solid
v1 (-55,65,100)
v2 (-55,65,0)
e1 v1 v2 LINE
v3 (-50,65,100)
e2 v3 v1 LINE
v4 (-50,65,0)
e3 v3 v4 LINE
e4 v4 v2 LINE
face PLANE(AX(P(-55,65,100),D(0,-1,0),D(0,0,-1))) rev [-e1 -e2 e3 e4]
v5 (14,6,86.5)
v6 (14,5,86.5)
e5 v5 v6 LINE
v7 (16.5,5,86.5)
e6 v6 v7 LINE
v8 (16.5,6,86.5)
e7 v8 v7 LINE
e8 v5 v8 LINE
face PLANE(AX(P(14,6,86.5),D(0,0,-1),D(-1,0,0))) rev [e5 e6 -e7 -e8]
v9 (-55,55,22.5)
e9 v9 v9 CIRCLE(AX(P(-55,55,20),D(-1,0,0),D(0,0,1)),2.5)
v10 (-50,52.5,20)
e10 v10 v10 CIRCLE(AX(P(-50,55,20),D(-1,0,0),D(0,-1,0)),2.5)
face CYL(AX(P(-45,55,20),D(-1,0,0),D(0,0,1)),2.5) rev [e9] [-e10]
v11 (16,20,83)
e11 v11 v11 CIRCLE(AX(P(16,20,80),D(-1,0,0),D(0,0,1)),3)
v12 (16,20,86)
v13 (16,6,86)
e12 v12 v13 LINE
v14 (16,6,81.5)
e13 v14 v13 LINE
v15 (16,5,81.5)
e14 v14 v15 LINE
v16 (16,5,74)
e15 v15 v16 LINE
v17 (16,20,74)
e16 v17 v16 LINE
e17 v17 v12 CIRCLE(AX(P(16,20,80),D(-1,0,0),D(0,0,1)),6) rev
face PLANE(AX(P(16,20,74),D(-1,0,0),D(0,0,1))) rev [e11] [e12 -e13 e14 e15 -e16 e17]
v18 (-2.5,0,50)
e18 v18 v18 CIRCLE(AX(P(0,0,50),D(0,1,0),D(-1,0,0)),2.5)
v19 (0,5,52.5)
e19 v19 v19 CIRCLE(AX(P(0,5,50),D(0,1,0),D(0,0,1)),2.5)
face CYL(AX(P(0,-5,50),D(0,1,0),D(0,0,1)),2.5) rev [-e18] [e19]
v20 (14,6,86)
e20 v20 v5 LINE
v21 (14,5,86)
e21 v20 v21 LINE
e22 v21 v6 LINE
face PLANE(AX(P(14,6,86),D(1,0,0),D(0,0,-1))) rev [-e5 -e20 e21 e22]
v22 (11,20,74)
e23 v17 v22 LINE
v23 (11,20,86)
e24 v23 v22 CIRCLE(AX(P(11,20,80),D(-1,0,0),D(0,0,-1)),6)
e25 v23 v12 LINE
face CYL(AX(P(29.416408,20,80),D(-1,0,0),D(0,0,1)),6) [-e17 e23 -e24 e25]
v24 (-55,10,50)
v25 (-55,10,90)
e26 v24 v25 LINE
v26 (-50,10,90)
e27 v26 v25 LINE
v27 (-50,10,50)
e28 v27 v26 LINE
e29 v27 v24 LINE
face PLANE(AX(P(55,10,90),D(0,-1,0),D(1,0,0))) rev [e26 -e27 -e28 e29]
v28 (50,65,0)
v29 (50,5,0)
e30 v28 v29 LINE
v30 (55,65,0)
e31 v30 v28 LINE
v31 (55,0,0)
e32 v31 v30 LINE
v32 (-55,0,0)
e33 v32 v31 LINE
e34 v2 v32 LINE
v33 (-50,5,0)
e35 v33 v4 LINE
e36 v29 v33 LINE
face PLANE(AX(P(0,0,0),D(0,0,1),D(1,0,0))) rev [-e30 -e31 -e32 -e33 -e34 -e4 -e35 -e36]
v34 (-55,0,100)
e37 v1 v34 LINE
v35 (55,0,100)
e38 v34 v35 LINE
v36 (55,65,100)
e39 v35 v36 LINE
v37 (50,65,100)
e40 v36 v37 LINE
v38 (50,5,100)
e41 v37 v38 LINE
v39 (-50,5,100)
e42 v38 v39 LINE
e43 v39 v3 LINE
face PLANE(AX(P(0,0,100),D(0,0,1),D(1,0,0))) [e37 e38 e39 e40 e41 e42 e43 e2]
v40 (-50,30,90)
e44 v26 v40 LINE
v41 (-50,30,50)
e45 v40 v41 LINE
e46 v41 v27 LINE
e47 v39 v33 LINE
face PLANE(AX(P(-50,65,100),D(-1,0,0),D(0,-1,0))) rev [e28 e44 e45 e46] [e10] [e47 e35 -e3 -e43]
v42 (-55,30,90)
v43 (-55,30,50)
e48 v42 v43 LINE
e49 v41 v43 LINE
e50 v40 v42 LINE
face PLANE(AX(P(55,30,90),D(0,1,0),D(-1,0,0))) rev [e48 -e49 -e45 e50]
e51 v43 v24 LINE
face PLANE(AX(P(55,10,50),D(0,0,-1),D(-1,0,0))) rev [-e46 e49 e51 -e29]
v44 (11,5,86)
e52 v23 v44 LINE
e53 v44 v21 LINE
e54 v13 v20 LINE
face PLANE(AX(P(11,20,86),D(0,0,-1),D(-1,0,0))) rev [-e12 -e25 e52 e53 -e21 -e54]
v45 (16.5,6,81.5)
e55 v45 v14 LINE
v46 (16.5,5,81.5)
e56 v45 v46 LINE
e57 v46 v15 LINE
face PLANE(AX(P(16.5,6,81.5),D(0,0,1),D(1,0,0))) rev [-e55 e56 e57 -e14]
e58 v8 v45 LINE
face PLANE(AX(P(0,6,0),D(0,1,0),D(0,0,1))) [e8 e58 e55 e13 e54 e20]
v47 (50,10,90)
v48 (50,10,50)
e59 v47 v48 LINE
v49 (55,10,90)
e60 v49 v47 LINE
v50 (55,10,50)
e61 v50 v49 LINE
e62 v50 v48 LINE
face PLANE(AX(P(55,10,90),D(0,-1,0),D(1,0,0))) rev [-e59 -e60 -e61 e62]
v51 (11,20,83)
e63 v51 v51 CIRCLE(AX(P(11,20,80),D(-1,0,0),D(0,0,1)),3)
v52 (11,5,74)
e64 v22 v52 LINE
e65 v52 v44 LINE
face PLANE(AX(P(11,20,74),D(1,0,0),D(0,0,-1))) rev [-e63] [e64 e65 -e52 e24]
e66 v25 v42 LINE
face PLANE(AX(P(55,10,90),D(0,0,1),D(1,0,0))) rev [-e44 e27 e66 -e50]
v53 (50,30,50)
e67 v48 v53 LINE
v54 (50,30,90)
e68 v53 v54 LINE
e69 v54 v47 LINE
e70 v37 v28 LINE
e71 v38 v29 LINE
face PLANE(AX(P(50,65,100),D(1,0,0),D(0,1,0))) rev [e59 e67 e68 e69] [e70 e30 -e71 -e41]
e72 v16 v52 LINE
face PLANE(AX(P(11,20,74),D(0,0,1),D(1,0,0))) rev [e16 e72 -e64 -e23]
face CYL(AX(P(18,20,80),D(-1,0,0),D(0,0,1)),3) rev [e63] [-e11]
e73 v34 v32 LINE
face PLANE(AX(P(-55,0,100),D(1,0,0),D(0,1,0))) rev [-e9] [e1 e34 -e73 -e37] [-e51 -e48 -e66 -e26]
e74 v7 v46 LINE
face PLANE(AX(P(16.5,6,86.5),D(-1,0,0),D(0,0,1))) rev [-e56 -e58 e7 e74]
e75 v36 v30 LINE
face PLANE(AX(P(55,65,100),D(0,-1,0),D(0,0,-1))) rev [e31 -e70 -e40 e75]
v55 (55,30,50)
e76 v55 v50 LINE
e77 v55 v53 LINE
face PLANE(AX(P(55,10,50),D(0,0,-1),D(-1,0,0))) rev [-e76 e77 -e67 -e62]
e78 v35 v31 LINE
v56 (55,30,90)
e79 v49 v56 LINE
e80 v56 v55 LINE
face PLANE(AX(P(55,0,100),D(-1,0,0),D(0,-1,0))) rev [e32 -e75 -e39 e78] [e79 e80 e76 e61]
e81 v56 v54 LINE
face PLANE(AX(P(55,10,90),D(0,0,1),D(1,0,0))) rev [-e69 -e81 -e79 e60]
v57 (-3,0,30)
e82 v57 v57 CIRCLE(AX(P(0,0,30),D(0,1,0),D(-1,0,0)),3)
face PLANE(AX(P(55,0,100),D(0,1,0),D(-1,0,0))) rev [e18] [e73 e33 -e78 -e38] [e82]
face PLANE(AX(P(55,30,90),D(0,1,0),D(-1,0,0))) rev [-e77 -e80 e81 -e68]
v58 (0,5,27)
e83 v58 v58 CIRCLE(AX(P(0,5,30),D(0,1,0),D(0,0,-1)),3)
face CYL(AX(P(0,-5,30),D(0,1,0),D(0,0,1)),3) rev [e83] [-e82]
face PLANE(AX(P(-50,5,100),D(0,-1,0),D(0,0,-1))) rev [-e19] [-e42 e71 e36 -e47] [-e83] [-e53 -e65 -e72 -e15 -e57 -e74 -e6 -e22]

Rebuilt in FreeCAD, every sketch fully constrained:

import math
import FreeCAD as App
import Part
import Sketcher
Q = App.Units.Quantity

doc = App.newDocument("Part")
params = doc.addObject("Spreadsheet::Sheet", "Params")
for row, (alias, value) in enumerate([
    ("sketch1_width", "100 mm"),
    ("sketch1_width2", "5 mm"),
    ("sketch1_height", "60 mm"),
    ("sketch1_height2", "65 mm"),
    ("pad1_length", "100 mm"),
    ("sketch2_diameter", "5 mm"),
    ("sketch2_diameter2", "6 mm"),
    ("pocket1_length", "10 mm"),
    ("sketch3_diameter", "5 mm"),
    ("pocket2_length", "10 mm"),
    ("sketch4_diameter", "4 mm"),
    ("pocket3_length", "10 mm"),
    ("sketch5_width", "20 mm"),
    ("sketch5_height", "40 mm"),
    ("sketch6_width", "5 mm"),
    ("sketch6_height", "12 mm"),
    ("pad2_length", "15 mm"),
    ("sketch7_radius", "6 mm"),
    ("pad3_length", "5 mm"),
    ("sketch8_diameter", "6 mm"),
    ("pocket5_length", "7 mm"),
    ("sketch9_width", "2 mm"),
    ("sketch9_height", "5 mm"),
    ("sketch9_width2", "2.5 mm"),
    ("pad4_length", "1 mm"),
], start=1):
    params.set(f"A{row}", alias)
    params.set(f"B{row}", "=" + value)
    params.setAlias(f"B{row}", alias)

body = doc.addObject("PartDesign::Body", "Body")

sketch1 = body.newObject("Sketcher::SketchObject", "Sketch")
sketch1.AttachmentSupport = (doc.getObject("XY_Plane"), [""])
sketch1.MapMode = "FlatFace"
sketch1.addGeometry([
    Part.LineSegment(App.Vector(50, 5, 0), App.Vector(-50, 5, 0)),
    Part.LineSegment(App.Vector(-50, 5, 0), App.Vector(-50, 65, 0)),
    Part.LineSegment(App.Vector(-50, 65, 0), App.Vector(-55, 65, 0)),
    Part.LineSegment(App.Vector(-55, 65, 0), App.Vector(-55, 0, 0)),
    Part.LineSegment(App.Vector(-55, 0, 0), App.Vector(55, 0, 0)),
    Part.LineSegment(App.Vector(55, 0, 0), App.Vector(55, 65, 0)),
    Part.LineSegment(App.Vector(55, 65, 0), App.Vector(50, 65, 0)),
    Part.LineSegment(App.Vector(50, 65, 0), App.Vector(50, 5, 0)),
], False)
sketch1.addConstraint([
    Sketcher.Constraint("Coincident", 0, 2, 1, 1),
    Sketcher.Constraint("Coincident", 1, 2, 2, 1),
    Sketcher.Constraint("Coincident", 2, 2, 3, 1),
    Sketcher.Constraint("Coincident", 3, 2, 4, 1),
    Sketcher.Constraint("Coincident", 4, 2, 5, 1),
    Sketcher.Constraint("Coincident", 5, 2, 6, 1),
    Sketcher.Constraint("Coincident", 6, 2, 7, 1),
    Sketcher.Constraint("Coincident", 7, 2, 0, 1),
    Sketcher.Constraint("Horizontal", 0),
    Sketcher.Constraint("Vertical", 1),
    Sketcher.Constraint("Horizontal", 2),
    Sketcher.Constraint("Vertical", 3),
    Sketcher.Constraint("Horizontal", 4),
    Sketcher.Constraint("Vertical", 5),
    Sketcher.Constraint("Horizontal", 6),
    Sketcher.Constraint("Vertical", 7),
    Sketcher.Constraint("Symmetric", 3, 2, 4, 2, -1, 1),
    Sketcher.Constraint("Symmetric", 1, 2, 6, 2, -2),
    Sketcher.Constraint("DistanceX", 0, 2, 0, 1, Q("100 mm")),
    Sketcher.Constraint("DistanceX", 2, 2, 2, 1, Q("5 mm")),
    Sketcher.Constraint("DistanceY", 1, 1, 1, 2, Q("60 mm")),
    Sketcher.Constraint("DistanceY", 3, 2, 3, 1, Q("65 mm")),
])
sketch1.setExpression("Constraints[18]", "Params.sketch1_width")
sketch1.setExpression("Constraints[19]", "Params.sketch1_width2")
sketch1.setExpression("Constraints[20]", "Params.sketch1_height")
sketch1.setExpression("Constraints[21]", "Params.sketch1_height2")
pad1 = body.newObject("PartDesign::Pad", "Pad")
pad1.Profile = sketch1
pad1.setExpression("Length", "Params.pad1_length")

sketch2 = body.newObject("Sketcher::SketchObject", "Sketch001")
sketch2.AttachmentSupport = (doc.getObject("XZ_Plane"), [""])
sketch2.MapMode = "FlatFace"
sketch2.AttachmentOffset = App.Placement(App.Vector(0, 0, -5), App.Rotation())
sketch2.addGeometry([
    Part.Circle(App.Vector(0, 50, 0), App.Vector(0, 0, 1), 2.5),
    Part.Circle(App.Vector(0, 30, 0), App.Vector(0, 0, 1), 3),
], False)
sketch2.addConstraint([
    Sketcher.Constraint("PointOnObject", 0, 3, -2),
    Sketcher.Constraint("PointOnObject", 1, 3, -2),
    Sketcher.Constraint("Diameter", 0, Q("5 mm")),
    Sketcher.Constraint("Diameter", 1, Q("6 mm")),
    Sketcher.Constraint("DistanceY", -1, 1, 0, 3, Q("50 mm")),
    Sketcher.Constraint("DistanceY", -1, 1, 1, 3, Q("30 mm")),
])
sketch2.setExpression("Constraints[2]", "Params.sketch2_diameter")
sketch2.setExpression("Constraints[3]", "Params.sketch2_diameter2")
pocket1 = body.newObject("PartDesign::Pocket", "Pocket")
pocket1.Profile = sketch2
pocket1.setExpression("Length", "Params.pocket1_length")
pocket1.Reversed = True

sketch3 = body.newObject("Sketcher::SketchObject", "Sketch002")
sketch3.AttachmentSupport = (doc.getObject("YZ_Plane"), [""])
sketch3.MapMode = "FlatFace"
sketch3.AttachmentOffset = App.Placement(App.Vector(0, 0, -55), App.Rotation())
sketch3.addGeometry([
    Part.Circle(App.Vector(20, 80, 0), App.Vector(0, 0, 1), 2.5),
    Part.Circle(App.Vector(55, 20, 0), App.Vector(0, 0, 1), 2.5),
], False)
sketch3.addConstraint([
    Sketcher.Constraint("Equal", 0, 1),
    Sketcher.Constraint("Diameter", 0, Q("5 mm")),
    Sketcher.Constraint("DistanceX", -1, 1, 0, 3, Q("20 mm")),
    Sketcher.Constraint("DistanceY", -1, 1, 0, 3, Q("80 mm")),
    Sketcher.Constraint("DistanceX", -1, 1, 1, 3, Q("55 mm")),
    Sketcher.Constraint("DistanceY", -1, 1, 1, 3, Q("20 mm")),
])
sketch3.setExpression("Constraints[1]", "Params.sketch3_diameter")
pocket2 = body.newObject("PartDesign::Pocket", "Pocket001")
pocket2.Profile = sketch3
pocket2.setExpression("Length", "Params.pocket2_length")
pocket2.Reversed = True

sketch4 = body.newObject("Sketcher::SketchObject", "Sketch003")
sketch4.AttachmentSupport = (doc.getObject("YZ_Plane"), [""])
sketch4.MapMode = "FlatFace"
sketch4.AttachmentOffset = App.Placement(App.Vector(0, 0, 55), App.Rotation())
sketch4.addGeometry(Part.Circle(App.Vector(15, 80, 0), App.Vector(0, 0, 1), 2), False)
sketch4.addConstraint([
    Sketcher.Constraint("Diameter", 0, Q("4 mm")),
    Sketcher.Constraint("DistanceX", -1, 1, 0, 3, Q("15 mm")),
    Sketcher.Constraint("DistanceY", -1, 1, 0, 3, Q("80 mm")),
])
sketch4.setExpression("Constraints[0]", "Params.sketch4_diameter")
pocket3 = body.newObject("PartDesign::Pocket", "Pocket002")
pocket3.Profile = sketch4
pocket3.setExpression("Length", "Params.pocket3_length")

sketch5 = body.newObject("Sketcher::SketchObject", "Sketch004")
sketch5.AttachmentSupport = (doc.getObject("YZ_Plane"), [""])
sketch5.MapMode = "FlatFace"
sketch5.AttachmentOffset = App.Placement(App.Vector(0, 0, -55), App.Rotation())
sketch5.addGeometry([
    Part.LineSegment(App.Vector(30, 50, 0), App.Vector(10, 50, 0)),
    Part.LineSegment(App.Vector(10, 50, 0), App.Vector(10, 90, 0)),
    Part.LineSegment(App.Vector(10, 90, 0), App.Vector(30, 90, 0)),
    Part.LineSegment(App.Vector(30, 90, 0), App.Vector(30, 50, 0)),
], False)
sketch5.addConstraint([
    Sketcher.Constraint("Coincident", 0, 2, 1, 1),
    Sketcher.Constraint("Coincident", 1, 2, 2, 1),
    Sketcher.Constraint("Coincident", 2, 2, 3, 1),
    Sketcher.Constraint("Coincident", 3, 2, 0, 1),
    Sketcher.Constraint("Horizontal", 0),
    Sketcher.Constraint("Vertical", 1),
    Sketcher.Constraint("Horizontal", 2),
    Sketcher.Constraint("Vertical", 3),
    Sketcher.Constraint("DistanceX", 0, 2, 0, 1, Q("20 mm")),
    Sketcher.Constraint("DistanceY", 1, 1, 1, 2, Q("40 mm")),
    Sketcher.Constraint("DistanceX", -1, 1, 0, 2, Q("10 mm")),
    Sketcher.Constraint("DistanceY", -1, 1, 0, 2, Q("50 mm")),
])
sketch5.setExpression("Constraints[8]", "Params.sketch5_width")
sketch5.setExpression("Constraints[9]", "Params.sketch5_height")
pocket4 = body.newObject("PartDesign::Pocket", "Pocket003")
pocket4.Profile = sketch5
pocket4.Type = "ThroughAll"
pocket4.Reversed = True

sketch6 = body.newObject("Sketcher::SketchObject", "Sketch005")
sketch6.AttachmentSupport = (doc.getObject("XZ_Plane"), [""])
sketch6.MapMode = "FlatFace"
sketch6.AttachmentOffset = App.Placement(App.Vector(0, 0, -5), App.Rotation())
sketch6.addGeometry([
    Part.LineSegment(App.Vector(11, 74, 0), App.Vector(11, 86, 0)),
    Part.LineSegment(App.Vector(11, 86, 0), App.Vector(16, 86, 0)),
    Part.LineSegment(App.Vector(16, 86, 0), App.Vector(16, 74, 0)),
    Part.LineSegment(App.Vector(16, 74, 0), App.Vector(11, 74, 0)),
], False)
sketch6.addConstraint([
    Sketcher.Constraint("Coincident", 0, 2, 1, 1),
    Sketcher.Constraint("Coincident", 1, 2, 2, 1),
    Sketcher.Constraint("Coincident", 2, 2, 3, 1),
    Sketcher.Constraint("Coincident", 3, 2, 0, 1),
    Sketcher.Constraint("Vertical", 0),
    Sketcher.Constraint("Horizontal", 1),
    Sketcher.Constraint("Vertical", 2),
    Sketcher.Constraint("Horizontal", 3),
    Sketcher.Constraint("DistanceX", 1, 1, 1, 2, Q("5 mm")),
    Sketcher.Constraint("DistanceY", 0, 1, 0, 2, Q("12 mm")),
    Sketcher.Constraint("DistanceX", -1, 1, 0, 2, Q("11 mm")),
    Sketcher.Constraint("DistanceY", -1, 1, 0, 2, Q("86 mm")),
])
sketch6.setExpression("Constraints[8]", "Params.sketch6_width")
sketch6.setExpression("Constraints[9]", "Params.sketch6_height")
pad2 = body.newObject("PartDesign::Pad", "Pad001")
pad2.Profile = sketch6
pad2.setExpression("Length", "Params.pad2_length")
pad2.Reversed = True

sketch7 = body.newObject("Sketcher::SketchObject", "Sketch006")
sketch7.AttachmentSupport = (doc.getObject("YZ_Plane"), [""])
sketch7.MapMode = "FlatFace"
sketch7.AttachmentOffset = App.Placement(App.Vector(0, 0, 11), App.Rotation())
sketch7.addGeometry([
    Part.LineSegment(App.Vector(20, 74, 0), App.Vector(20, 86, 0)),
    Part.ArcOfCircle(Part.Circle(App.Vector(20, 80, 0), App.Vector(0, 0, 1), 6), math.radians(-90), math.radians(90)),
], False)
sketch7.addConstraint([
    Sketcher.Constraint("Coincident", 0, 1, 1, 1),
    Sketcher.Constraint("Coincident", 1, 2, 0, 2),
    Sketcher.Constraint("Vertical", 0),
    Sketcher.Constraint("Vertical", 1, 3, 0, 1),
    Sketcher.Constraint("Radius", 1, Q("6 mm")),
    Sketcher.Constraint("DistanceX", -1, 1, 1, 3, Q("20 mm")),
    Sketcher.Constraint("DistanceY", -1, 1, 1, 3, Q("80 mm")),
])
sketch7.setExpression("Constraints[4]", "Params.sketch7_radius")
pad3 = body.newObject("PartDesign::Pad", "Pad002")
pad3.Profile = sketch7
pad3.setExpression("Length", "Params.pad3_length")

sketch8 = body.newObject("Sketcher::SketchObject", "Sketch007")
sketch8.AttachmentSupport = (doc.getObject("YZ_Plane"), [""])
sketch8.MapMode = "FlatFace"
sketch8.AttachmentOffset = App.Placement(App.Vector(0, 0, 11), App.Rotation())
sketch8.addGeometry(Part.Circle(App.Vector(20, 80, 0), App.Vector(0, 0, 1), 3), False)
sketch8.addConstraint([
    Sketcher.Constraint("Diameter", 0, Q("6 mm")),
    Sketcher.Constraint("DistanceX", -1, 1, 0, 3, Q("20 mm")),
    Sketcher.Constraint("DistanceY", -1, 1, 0, 3, Q("80 mm")),
])
sketch8.setExpression("Constraints[0]", "Params.sketch8_diameter")
pocket5 = body.newObject("PartDesign::Pocket", "Pocket004")
pocket5.Profile = sketch8
pocket5.setExpression("Length", "Params.pocket5_length")
pocket5.Reversed = True

sketch9 = body.newObject("Sketcher::SketchObject", "Sketch008")
sketch9.AttachmentSupport = (doc.getObject("XZ_Plane"), [""])
sketch9.MapMode = "FlatFace"
sketch9.AttachmentOffset = App.Placement(App.Vector(0, 0, -5), App.Rotation())
sketch9.addGeometry([
    Part.LineSegment(App.Vector(14, 86.5, 0), App.Vector(16.5, 86.5, 0)),
    Part.LineSegment(App.Vector(16.5, 86.5, 0), App.Vector(16.5, 81.5, 0)),
    Part.LineSegment(App.Vector(16.5, 81.5, 0), App.Vector(16, 81.5, 0)),
    Part.LineSegment(App.Vector(16, 81.5, 0), App.Vector(16, 86, 0)),
    Part.LineSegment(App.Vector(16, 86, 0), App.Vector(14, 86, 0)),
    Part.LineSegment(App.Vector(14, 86, 0), App.Vector(14, 86.5, 0)),
], False)
sketch9.addConstraint([
    Sketcher.Constraint("Coincident", 0, 2, 1, 1),
    Sketcher.Constraint("Coincident", 1, 2, 2, 1),
    Sketcher.Constraint("Coincident", 2, 2, 3, 1),
    Sketcher.Constraint("Coincident", 3, 2, 4, 1),
    Sketcher.Constraint("Coincident", 4, 2, 5, 1),
    Sketcher.Constraint("Coincident", 5, 2, 0, 1),
    Sketcher.Constraint("Horizontal", 0),
    Sketcher.Constraint("Vertical", 1),
    Sketcher.Constraint("Horizontal", 2),
    Sketcher.Constraint("Vertical", 3),
    Sketcher.Constraint("Horizontal", 4),
    Sketcher.Constraint("Vertical", 5),
    Sketcher.Constraint("Equal", 2, 5),
    Sketcher.Constraint("DistanceX", 4, 2, 4, 1, Q("2 mm")),
    Sketcher.Constraint("DistanceY", 1, 2, 1, 1, Q("5 mm")),
    Sketcher.Constraint("DistanceX", 0, 1, 0, 2, Q("2.5 mm")),
    Sketcher.Constraint("DistanceX", -1, 1, 2, 2, Q("16 mm")),
    Sketcher.Constraint("DistanceY", -1, 1, 3, 2, Q("86 mm")),
])
sketch9.setExpression("Constraints[13]", "Params.sketch9_width")
sketch9.setExpression("Constraints[14]", "Params.sketch9_height")
sketch9.setExpression("Constraints[15]", "Params.sketch9_width2")
pad4 = body.newObject("PartDesign::Pad", "Pad003")
pad4.Profile = sketch9
pad4.setExpression("Length", "Params.pad4_length")
pad4.Reversed = True

doc.recompute()
